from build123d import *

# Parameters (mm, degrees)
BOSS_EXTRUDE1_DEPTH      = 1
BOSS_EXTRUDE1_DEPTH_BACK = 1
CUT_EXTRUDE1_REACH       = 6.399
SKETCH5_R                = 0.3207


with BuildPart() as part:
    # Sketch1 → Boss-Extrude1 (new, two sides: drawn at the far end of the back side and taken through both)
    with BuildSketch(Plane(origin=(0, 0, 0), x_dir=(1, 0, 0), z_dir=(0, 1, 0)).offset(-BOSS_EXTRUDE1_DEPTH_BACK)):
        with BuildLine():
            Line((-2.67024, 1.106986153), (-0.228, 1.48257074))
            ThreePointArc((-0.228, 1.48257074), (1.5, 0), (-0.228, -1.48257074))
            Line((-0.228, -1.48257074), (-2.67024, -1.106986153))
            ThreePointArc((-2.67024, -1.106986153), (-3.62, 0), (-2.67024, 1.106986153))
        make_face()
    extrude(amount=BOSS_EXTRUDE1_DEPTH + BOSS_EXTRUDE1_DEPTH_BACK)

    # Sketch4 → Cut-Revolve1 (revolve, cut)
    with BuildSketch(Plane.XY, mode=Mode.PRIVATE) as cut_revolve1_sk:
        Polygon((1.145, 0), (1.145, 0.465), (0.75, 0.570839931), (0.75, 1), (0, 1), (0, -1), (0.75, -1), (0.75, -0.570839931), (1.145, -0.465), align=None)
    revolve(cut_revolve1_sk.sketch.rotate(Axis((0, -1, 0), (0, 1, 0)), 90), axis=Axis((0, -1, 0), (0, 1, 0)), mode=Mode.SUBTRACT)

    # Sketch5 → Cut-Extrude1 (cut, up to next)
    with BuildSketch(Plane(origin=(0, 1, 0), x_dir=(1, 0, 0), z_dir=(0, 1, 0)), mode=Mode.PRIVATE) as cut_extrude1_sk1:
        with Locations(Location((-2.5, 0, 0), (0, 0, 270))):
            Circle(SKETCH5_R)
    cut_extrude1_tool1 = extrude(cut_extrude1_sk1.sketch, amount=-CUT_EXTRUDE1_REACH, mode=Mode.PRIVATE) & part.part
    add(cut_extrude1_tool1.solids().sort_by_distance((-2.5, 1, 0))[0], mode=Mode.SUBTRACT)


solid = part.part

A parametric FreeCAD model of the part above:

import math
import FreeCAD as App
import Part
import Sketcher
from FreeCAD import Vector
Q = App.Units.Quantity


def add_polygon(sketch, points):
    """Adds a closed chain of lines whose ends are joined by coincident constraints."""
    first, n = sketch.GeometryCount, len(points)
    for a, b in zip(points, points[1:] + points[:1]):
        sketch.addGeometry(Part.LineSegment(App.Vector(*a, 0), App.Vector(*b, 0)), False)
    for i in range(n):
        sketch.addConstraint(Sketcher.Constraint("Coincident", first + i, 2, first + (i + 1) % n, 1))

doc = App.newDocument("Part")
body = doc.addObject("PartDesign::Body", "Body")

# Sketch on XZ plane
sketch1 = body.newObject("Sketcher::SketchObject", "Sketch")
sketch1.AttachmentSupport = (doc.getObject("XZ_Plane"), [""])
sketch1.MapMode = "FlatFace"
sketch1.addGeometry([
    Part.LineSegment(Vector(-0.2, -1.5, 0), Vector(-2.7, -1.1, 0)),
    Part.ArcOfCircle(Part.Circle(Vector(-2.5, 0, 0), Vector(0, 0, 1), 1.1), math.radians(99), math.radians(261)),
    Part.LineSegment(Vector(-2.7, 1.1, 0), Vector(-0.2, 1.5, 0)),
    Part.ArcOfCircle(Part.Circle(Vector(0, 0, 0), Vector(0, 0, 1), 1.5), math.radians(-99), math.radians(99)),
], False)
sketch1.addConstraint([
    Sketcher.Constraint("Tangent", 0, 2, 1, 2),
    Sketcher.Constraint("Tangent", 1, 1, 2, 1),
    Sketcher.Constraint("Tangent", 2, 2, 3, 2),
    Sketcher.Constraint("Tangent", 3, 1, 0, 1),
    Sketcher.Constraint("Coincident", 3, 3, -1, 1),
    Sketcher.Constraint("PointOnObject", 1, 3, -1),
    Sketcher.Constraint("Radius", 3, Q("1.5 mm")),
    Sketcher.Constraint("Radius", 1, Q("1.12 mm")),
    Sketcher.Constraint("DistanceX", 1, 3, -1, 1, Q("2.5 mm")),
])
pad1 = body.newObject("PartDesign::Pad", "Pad")
pad1.Profile = sketch1
pad1.Type = "TwoLengths"
pad1.Length = 1
pad1.Length2 = 1
pad1.Reversed = True

# Sketch on XY plane
sketch2 = body.newObject("Sketcher::SketchObject", "Sketch001")
sketch2.AttachmentSupport = (doc.getObject("XY_Plane"), [""])
sketch2.MapMode = "FlatFace"
add_polygon(sketch2, [(1.15, 0.47), (0.75, 0.57), (0.75, 1), (0, 1), (0, -1), (0.75, -1), (0.75, -0.57), (1.15, -0.47)])  # lines 0-7
sketch2.addConstraint([
    Sketcher.Constraint("Vertical", 1),
    Sketcher.Constraint("Horizontal", 2),
    Sketcher.Constraint("Vertical", 3),
    Sketcher.Constraint("Horizontal", 4),
    Sketcher.Constraint("Vertical", 5),
    Sketcher.Constraint("Vertical", 7),
    Sketcher.Constraint("Symmetric", 2, 2, 3, 2, -1, 1),
    Sketcher.Constraint("Symmetric", 0, 2, 5, 2, -1),
    Sketcher.Constraint("Equal", 0, 6),
    Sketcher.Constraint("DistanceY", 3, 2, 3, 1, Q("2 mm")),
    Sketcher.Constraint("Angle", 0, Q("165 deg")),
    Sketcher.Constraint("DistanceX", 2, 2, 2, 1, Q("0.75 mm")),
    Sketcher.Constraint("DistanceY", 7, 1, 7, 2, Q("0.93 mm")),
    Sketcher.Constraint("DistanceX", -1, 1, 6, 2, Q("1.145 mm")),
])
groove = body.newObject("PartDesign::Groove", "Groove")
groove.Profile = sketch2
groove.ReferenceAxis = (sketch2, ["V_Axis"])
groove.Angle = 360

# Sketch on XZ plane
sketch3 = body.newObject("Sketcher::SketchObject", "Sketch002")
sketch3.AttachmentSupport = (doc.getObject("XZ_Plane"), [""])
sketch3.MapMode = "FlatFace"
sketch3.AttachmentOffset = App.Placement(Vector(0, 0, -1), App.Rotation())
sketch3.addGeometry(Part.Circle(Vector(-2.5, 0, 0), Vector(0, 0, 1), 0.32), False)
sketch3.addConstraint([
    Sketcher.Constraint("PointOnObject", 0, 3, -1),
    Sketcher.Constraint("Diameter", 0, Q("0.6414 mm")),
    Sketcher.Constraint("DistanceX", 0, 3, -1, 1, Q("2.5 mm")),
])
pocket1 = body.newObject("PartDesign::Pocket", "Pocket")
pocket1.Profile = sketch3
pocket1.Type = "UpToFirst"
pocket1.Reversed = True

doc.recompute()
